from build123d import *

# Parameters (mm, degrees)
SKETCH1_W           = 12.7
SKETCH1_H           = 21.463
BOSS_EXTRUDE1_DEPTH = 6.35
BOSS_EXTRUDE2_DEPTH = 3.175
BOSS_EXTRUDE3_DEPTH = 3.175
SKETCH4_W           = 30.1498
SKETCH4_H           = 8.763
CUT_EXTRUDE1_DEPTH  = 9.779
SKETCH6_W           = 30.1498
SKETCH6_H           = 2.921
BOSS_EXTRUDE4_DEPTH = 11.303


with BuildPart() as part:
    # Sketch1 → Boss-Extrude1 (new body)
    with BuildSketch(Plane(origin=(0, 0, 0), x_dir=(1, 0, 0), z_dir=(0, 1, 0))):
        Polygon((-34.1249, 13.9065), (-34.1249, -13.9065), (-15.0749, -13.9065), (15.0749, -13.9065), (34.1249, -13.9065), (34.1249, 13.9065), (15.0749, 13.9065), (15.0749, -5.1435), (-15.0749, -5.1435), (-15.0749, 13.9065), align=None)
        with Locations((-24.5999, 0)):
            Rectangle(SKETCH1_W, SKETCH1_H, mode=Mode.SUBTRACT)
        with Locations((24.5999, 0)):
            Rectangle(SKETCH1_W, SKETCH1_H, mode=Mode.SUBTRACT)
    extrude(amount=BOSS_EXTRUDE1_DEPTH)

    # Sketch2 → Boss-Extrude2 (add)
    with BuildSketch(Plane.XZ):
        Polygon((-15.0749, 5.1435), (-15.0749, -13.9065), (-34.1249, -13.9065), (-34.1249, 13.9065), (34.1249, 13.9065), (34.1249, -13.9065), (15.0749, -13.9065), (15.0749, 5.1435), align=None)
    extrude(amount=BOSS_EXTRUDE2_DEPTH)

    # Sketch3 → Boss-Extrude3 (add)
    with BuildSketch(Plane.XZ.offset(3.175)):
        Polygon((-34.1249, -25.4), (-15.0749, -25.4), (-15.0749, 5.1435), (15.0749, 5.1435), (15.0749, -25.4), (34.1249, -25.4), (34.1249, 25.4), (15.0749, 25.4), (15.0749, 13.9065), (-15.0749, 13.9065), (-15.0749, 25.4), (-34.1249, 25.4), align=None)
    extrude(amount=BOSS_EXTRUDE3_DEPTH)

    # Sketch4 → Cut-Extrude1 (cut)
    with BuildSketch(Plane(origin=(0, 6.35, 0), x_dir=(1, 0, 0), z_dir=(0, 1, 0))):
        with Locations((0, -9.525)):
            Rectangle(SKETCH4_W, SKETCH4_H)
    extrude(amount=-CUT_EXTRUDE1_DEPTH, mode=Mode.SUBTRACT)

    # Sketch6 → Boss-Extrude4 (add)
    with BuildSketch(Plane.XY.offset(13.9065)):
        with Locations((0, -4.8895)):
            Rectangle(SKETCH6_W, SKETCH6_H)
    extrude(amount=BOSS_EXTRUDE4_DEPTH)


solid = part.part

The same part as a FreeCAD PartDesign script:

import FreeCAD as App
import Part
import Sketcher

V = App.Vector
Q = App.Units.Quantity


def add_polygon(sketch, points):
    """Adds a closed chain of lines whose ends are joined by coincident constraints."""
    first, n = sketch.GeometryCount, len(points)
    for a, b in zip(points, points[1:] + points[:1]):
        sketch.addGeometry(Part.LineSegment(App.Vector(*a, 0), App.Vector(*b, 0)), False)
    for i in range(n):
        sketch.addConstraint(Sketcher.Constraint("Coincident", first + i, 2, first + (i + 1) % n, 1))

doc = App.newDocument("Part")
body = doc.addObject("PartDesign::Body", "Body")

# Sketch on XZ plane
sketch1 = doc.addObject("Sketcher::SketchObject", "Sketch")
body.addObject(sketch1)
sketch1.AttachmentSupport = (doc.XZ_Plane, [""])
sketch1.MapMode = "FlatFace"
add_polygon(sketch1, [(-34, -14), (-34, 14), (34, 14), (34, -14), (15, -14), (15, 5), (-15, 5), (-15, -14)])  # lines 0-7
add_polygon(sketch1, [(-18, 11), (-31, 11), (-31, -11), (-18, -11)])  # lines 8-11
add_polygon(sketch1, [(31, 11), (18, 11), (18, -11), (31, -11)])  # lines 12-15
sketch1.addConstraint([
    Sketcher.Constraint("Vertical", 0),
    Sketcher.Constraint("Horizontal", 1),
    Sketcher.Constraint("Vertical", 2),
    Sketcher.Constraint("Horizontal", 3),
    Sketcher.Constraint("Vertical", 4),
    Sketcher.Constraint("Horizontal", 5),
    Sketcher.Constraint("Vertical", 6),
    Sketcher.Constraint("Horizontal", 7),
    Sketcher.Constraint("Horizontal", 8),
    Sketcher.Constraint("Vertical", 9),
    Sketcher.Constraint("Horizontal", 10),
    Sketcher.Constraint("Vertical", 11),
    Sketcher.Constraint("Horizontal", 12),
    Sketcher.Constraint("Vertical", 13),
    Sketcher.Constraint("Horizontal", 14),
    Sketcher.Constraint("Vertical", 15),
    Sketcher.Constraint("Symmetric", 0, 2, 2, 2, -1, 1),
    Sketcher.Constraint("Symmetric", 10, 2, 12, 2, -1, 1),
    Sketcher.Constraint("Symmetric", 8, 2, 14, 2, -1, 1),
    Sketcher.Constraint("Symmetric", 3, 2, 6, 2, -2),
    Sketcher.Constraint("Horizontal", 11, 2, 12, 2),
    Sketcher.Constraint("Equal", 7, 4),
    Sketcher.Constraint("DistanceX", 8, 2, 8, 1, Q("0.5 in")),
    Sketcher.Constraint("DistanceX", 3, 2, 3, 1, Q("0.75 in")),
    Sketcher.Constraint("DistanceX", 1, 1, 1, 2, Q("2.687 in")),
    Sketcher.Constraint("DistanceY", 0, 1, 0, 2, Q("1.095 in")),
    Sketcher.Constraint("DistanceY", 9, 2, 9, 1, Q("0.845 in")),
    Sketcher.Constraint("DistanceX", 0, 2, 8, 2, Q("0.125 in")),
])
pad1 = doc.addObject("PartDesign::Pad", "Pad")
body.addObject(pad1)
pad1.Profile = sketch1
pad1.Length = Q("0.25 in")
pad1.Reversed = True

# Sketch on XZ plane
sketch2 = doc.addObject("Sketcher::SketchObject", "Sketch001")
body.addObject(sketch2)
sketch2.AttachmentSupport = (doc.XZ_Plane, [""])
sketch2.MapMode = "FlatFace"
add_polygon(sketch2, [(-15, -14), (-15, 5), (15, 5), (15, -14), (34, -14), (34, 14), (-34, 14), (-34, -14)])  # lines 0-7
sketch2.addConstraint([
    Sketcher.Constraint("Vertical", 0),
    Sketcher.Constraint("Horizontal", 1),
    Sketcher.Constraint("Vertical", 2),
    Sketcher.Constraint("Horizontal", 3),
    Sketcher.Constraint("Vertical", 4),
    Sketcher.Constraint("Horizontal", 5),
    Sketcher.Constraint("Vertical", 6),
    Sketcher.Constraint("Horizontal", 7),
    Sketcher.Constraint("Symmetric", 3, 2, 5, 2, -1, 1),
    Sketcher.Constraint("Symmetric", 2, 2, 7, 2, -2),
    Sketcher.Constraint("Equal", 7, 0),
    Sketcher.Constraint("DistanceX", 3, 1, 3, 2, Q("0.75 in")),
    Sketcher.Constraint("DistanceX", 1, 1, 1, 2, Q("1.187 in")),
    Sketcher.Constraint("DistanceY", 4, 1, 4, 2, Q("1.095 in")),
])
pad2 = doc.addObject("PartDesign::Pad", "Pad001")
body.addObject(pad2)
pad2.Profile = sketch2
pad2.Length = Q("0.125 in")

# Sketch on XZ plane
sketch3 = doc.addObject("Sketcher::SketchObject", "Sketch002")
body.addObject(sketch3)
sketch3.AttachmentSupport = (doc.XZ_Plane, [""])
sketch3.MapMode = "FlatFace"
sketch3.AttachmentOffset = App.Placement(V(0, 0, 0.125 * 25.4), App.Rotation())
add_polygon(sketch3, [(-34, -25), (-15, -25), (-15, 5), (15, 5), (15, -25), (34, -25), (34, 25), (15, 25), (15, 14), (-15, 14), (-15, 25), (-34, 25)])  # lines 0-11
sketch3.addConstraint([
    Sketcher.Constraint("Horizontal", 0),
    Sketcher.Constraint("Vertical", 1),
    Sketcher.Constraint("Horizontal", 2),
    Sketcher.Constraint("Vertical", 3),
    Sketcher.Constraint("Horizontal", 4),
    Sketcher.Constraint("Vertical", 5),
    Sketcher.Constraint("Horizontal", 6),
    Sketcher.Constraint("Vertical", 7),
    Sketcher.Constraint("Horizontal", 8),
    Sketcher.Constraint("Vertical", 9),
    Sketcher.Constraint("Horizontal", 10),
    Sketcher.Constraint("Vertical", 11),
    Sketcher.Constraint("Symmetric", 0, 2, 6, 2, -1, 1),
    Sketcher.Constraint("Symmetric", 3, 2, 9, 2, -1, 1),
    Sketcher.Constraint("Symmetric", 0, 2, 3, 2, -2),
    Sketcher.Constraint("Equal", 0, 4),
    Sketcher.Constraint("DistanceY", 5, 1, 5, 2, Q("2 in")),
    Sketcher.Constraint("DistanceX", 0, 1, 0, 2, Q("0.75 in")),
    Sketcher.Constraint("DistanceX", 2, 1, 2, 2, Q("1.187 in")),
    Sketcher.Constraint("DistanceY", 1, 1, 1, 2, Q("1.2025 in")),
    Sketcher.Constraint("DistanceY", 7, 2, 7, 1, Q("0.4525 in")),
])
pad3 = doc.addObject("PartDesign::Pad", "Pad002")
body.addObject(pad3)
pad3.Profile = sketch3
pad3.Length = Q("0.125 in")

# Sketch on XZ plane
sketch4 = doc.addObject("Sketcher::SketchObject", "Sketch003")
body.addObject(sketch4)
sketch4.AttachmentSupport = (doc.XZ_Plane, [""])
sketch4.MapMode = "FlatFace"
sketch4.AttachmentOffset = App.Placement(V(0, 0, -0.25 * 25.4), App.Rotation())
add_polygon(sketch4, [(-15, 5), (-15, 14), (15, 14), (15, 5)])  # lines 0-3
sketch4.addConstraint([
    Sketcher.Constraint("Vertical", 0),
    Sketcher.Constraint("Horizontal", 1),
    Sketcher.Constraint("Vertical", 2),
    Sketcher.Constraint("Horizontal", 3),
    Sketcher.Constraint("DistanceX", 1, 1, 1, 2, Q("1.187 in")),
    Sketcher.Constraint("DistanceY", 0, 1, 0, 2, Q("0.345 in")),
    Sketcher.Constraint("DistanceX", 0, 2, -1, 1, Q("0.5935 in")),
    Sketcher.Constraint("DistanceY", -1, 1, 0, 2, Q("0.5475 in")),
])
pocket1 = doc.addObject("PartDesign::Pocket", "Pocket")
body.addObject(pocket1)
pocket1.Profile = sketch4
pocket1.Length = Q("0.385 in")
pocket1.Reversed = True

# Sketch on XY plane
sketch5 = doc.addObject("Sketcher::SketchObject", "Sketch004")
body.addObject(sketch5)
sketch5.AttachmentSupport = (doc.XY_Plane, [""])
sketch5.MapMode = "FlatFace"
sketch5.AttachmentOffset = App.Placement(V(0, 0, 0.5475 * 25.4), App.Rotation())
add_polygon(sketch5, [(-15.1, -3.4), (-15.1, -6.3), (15.1, -6.3), (15.1, -3.4)])  # lines 0-3
sketch5.addConstraint([
    Sketcher.Constraint("Vertical", 0),
    Sketcher.Constraint("Horizontal", 1),
    Sketcher.Constraint("Vertical", 2),
    Sketcher.Constraint("Horizontal", 3),
    Sketcher.Constraint("DistanceX", 1, 1, 1, 2, Q("1.187 in")),
    Sketcher.Constraint("DistanceY", 0, 2, 0, 1, Q("0.115 in")),
    Sketcher.Constraint("DistanceY", 0, 2, -1, 1, Q("0.25 in")),
    Sketcher.Constraint("DistanceX", 0, 2, -1, 1, Q("0.5935 in")),
])
pad4 = doc.addObject("PartDesign::Pad", "Pad003")
body.addObject(pad4)
pad4.Profile = sketch5
pad4.Length = Q("0.445 in")

doc.recompute()
